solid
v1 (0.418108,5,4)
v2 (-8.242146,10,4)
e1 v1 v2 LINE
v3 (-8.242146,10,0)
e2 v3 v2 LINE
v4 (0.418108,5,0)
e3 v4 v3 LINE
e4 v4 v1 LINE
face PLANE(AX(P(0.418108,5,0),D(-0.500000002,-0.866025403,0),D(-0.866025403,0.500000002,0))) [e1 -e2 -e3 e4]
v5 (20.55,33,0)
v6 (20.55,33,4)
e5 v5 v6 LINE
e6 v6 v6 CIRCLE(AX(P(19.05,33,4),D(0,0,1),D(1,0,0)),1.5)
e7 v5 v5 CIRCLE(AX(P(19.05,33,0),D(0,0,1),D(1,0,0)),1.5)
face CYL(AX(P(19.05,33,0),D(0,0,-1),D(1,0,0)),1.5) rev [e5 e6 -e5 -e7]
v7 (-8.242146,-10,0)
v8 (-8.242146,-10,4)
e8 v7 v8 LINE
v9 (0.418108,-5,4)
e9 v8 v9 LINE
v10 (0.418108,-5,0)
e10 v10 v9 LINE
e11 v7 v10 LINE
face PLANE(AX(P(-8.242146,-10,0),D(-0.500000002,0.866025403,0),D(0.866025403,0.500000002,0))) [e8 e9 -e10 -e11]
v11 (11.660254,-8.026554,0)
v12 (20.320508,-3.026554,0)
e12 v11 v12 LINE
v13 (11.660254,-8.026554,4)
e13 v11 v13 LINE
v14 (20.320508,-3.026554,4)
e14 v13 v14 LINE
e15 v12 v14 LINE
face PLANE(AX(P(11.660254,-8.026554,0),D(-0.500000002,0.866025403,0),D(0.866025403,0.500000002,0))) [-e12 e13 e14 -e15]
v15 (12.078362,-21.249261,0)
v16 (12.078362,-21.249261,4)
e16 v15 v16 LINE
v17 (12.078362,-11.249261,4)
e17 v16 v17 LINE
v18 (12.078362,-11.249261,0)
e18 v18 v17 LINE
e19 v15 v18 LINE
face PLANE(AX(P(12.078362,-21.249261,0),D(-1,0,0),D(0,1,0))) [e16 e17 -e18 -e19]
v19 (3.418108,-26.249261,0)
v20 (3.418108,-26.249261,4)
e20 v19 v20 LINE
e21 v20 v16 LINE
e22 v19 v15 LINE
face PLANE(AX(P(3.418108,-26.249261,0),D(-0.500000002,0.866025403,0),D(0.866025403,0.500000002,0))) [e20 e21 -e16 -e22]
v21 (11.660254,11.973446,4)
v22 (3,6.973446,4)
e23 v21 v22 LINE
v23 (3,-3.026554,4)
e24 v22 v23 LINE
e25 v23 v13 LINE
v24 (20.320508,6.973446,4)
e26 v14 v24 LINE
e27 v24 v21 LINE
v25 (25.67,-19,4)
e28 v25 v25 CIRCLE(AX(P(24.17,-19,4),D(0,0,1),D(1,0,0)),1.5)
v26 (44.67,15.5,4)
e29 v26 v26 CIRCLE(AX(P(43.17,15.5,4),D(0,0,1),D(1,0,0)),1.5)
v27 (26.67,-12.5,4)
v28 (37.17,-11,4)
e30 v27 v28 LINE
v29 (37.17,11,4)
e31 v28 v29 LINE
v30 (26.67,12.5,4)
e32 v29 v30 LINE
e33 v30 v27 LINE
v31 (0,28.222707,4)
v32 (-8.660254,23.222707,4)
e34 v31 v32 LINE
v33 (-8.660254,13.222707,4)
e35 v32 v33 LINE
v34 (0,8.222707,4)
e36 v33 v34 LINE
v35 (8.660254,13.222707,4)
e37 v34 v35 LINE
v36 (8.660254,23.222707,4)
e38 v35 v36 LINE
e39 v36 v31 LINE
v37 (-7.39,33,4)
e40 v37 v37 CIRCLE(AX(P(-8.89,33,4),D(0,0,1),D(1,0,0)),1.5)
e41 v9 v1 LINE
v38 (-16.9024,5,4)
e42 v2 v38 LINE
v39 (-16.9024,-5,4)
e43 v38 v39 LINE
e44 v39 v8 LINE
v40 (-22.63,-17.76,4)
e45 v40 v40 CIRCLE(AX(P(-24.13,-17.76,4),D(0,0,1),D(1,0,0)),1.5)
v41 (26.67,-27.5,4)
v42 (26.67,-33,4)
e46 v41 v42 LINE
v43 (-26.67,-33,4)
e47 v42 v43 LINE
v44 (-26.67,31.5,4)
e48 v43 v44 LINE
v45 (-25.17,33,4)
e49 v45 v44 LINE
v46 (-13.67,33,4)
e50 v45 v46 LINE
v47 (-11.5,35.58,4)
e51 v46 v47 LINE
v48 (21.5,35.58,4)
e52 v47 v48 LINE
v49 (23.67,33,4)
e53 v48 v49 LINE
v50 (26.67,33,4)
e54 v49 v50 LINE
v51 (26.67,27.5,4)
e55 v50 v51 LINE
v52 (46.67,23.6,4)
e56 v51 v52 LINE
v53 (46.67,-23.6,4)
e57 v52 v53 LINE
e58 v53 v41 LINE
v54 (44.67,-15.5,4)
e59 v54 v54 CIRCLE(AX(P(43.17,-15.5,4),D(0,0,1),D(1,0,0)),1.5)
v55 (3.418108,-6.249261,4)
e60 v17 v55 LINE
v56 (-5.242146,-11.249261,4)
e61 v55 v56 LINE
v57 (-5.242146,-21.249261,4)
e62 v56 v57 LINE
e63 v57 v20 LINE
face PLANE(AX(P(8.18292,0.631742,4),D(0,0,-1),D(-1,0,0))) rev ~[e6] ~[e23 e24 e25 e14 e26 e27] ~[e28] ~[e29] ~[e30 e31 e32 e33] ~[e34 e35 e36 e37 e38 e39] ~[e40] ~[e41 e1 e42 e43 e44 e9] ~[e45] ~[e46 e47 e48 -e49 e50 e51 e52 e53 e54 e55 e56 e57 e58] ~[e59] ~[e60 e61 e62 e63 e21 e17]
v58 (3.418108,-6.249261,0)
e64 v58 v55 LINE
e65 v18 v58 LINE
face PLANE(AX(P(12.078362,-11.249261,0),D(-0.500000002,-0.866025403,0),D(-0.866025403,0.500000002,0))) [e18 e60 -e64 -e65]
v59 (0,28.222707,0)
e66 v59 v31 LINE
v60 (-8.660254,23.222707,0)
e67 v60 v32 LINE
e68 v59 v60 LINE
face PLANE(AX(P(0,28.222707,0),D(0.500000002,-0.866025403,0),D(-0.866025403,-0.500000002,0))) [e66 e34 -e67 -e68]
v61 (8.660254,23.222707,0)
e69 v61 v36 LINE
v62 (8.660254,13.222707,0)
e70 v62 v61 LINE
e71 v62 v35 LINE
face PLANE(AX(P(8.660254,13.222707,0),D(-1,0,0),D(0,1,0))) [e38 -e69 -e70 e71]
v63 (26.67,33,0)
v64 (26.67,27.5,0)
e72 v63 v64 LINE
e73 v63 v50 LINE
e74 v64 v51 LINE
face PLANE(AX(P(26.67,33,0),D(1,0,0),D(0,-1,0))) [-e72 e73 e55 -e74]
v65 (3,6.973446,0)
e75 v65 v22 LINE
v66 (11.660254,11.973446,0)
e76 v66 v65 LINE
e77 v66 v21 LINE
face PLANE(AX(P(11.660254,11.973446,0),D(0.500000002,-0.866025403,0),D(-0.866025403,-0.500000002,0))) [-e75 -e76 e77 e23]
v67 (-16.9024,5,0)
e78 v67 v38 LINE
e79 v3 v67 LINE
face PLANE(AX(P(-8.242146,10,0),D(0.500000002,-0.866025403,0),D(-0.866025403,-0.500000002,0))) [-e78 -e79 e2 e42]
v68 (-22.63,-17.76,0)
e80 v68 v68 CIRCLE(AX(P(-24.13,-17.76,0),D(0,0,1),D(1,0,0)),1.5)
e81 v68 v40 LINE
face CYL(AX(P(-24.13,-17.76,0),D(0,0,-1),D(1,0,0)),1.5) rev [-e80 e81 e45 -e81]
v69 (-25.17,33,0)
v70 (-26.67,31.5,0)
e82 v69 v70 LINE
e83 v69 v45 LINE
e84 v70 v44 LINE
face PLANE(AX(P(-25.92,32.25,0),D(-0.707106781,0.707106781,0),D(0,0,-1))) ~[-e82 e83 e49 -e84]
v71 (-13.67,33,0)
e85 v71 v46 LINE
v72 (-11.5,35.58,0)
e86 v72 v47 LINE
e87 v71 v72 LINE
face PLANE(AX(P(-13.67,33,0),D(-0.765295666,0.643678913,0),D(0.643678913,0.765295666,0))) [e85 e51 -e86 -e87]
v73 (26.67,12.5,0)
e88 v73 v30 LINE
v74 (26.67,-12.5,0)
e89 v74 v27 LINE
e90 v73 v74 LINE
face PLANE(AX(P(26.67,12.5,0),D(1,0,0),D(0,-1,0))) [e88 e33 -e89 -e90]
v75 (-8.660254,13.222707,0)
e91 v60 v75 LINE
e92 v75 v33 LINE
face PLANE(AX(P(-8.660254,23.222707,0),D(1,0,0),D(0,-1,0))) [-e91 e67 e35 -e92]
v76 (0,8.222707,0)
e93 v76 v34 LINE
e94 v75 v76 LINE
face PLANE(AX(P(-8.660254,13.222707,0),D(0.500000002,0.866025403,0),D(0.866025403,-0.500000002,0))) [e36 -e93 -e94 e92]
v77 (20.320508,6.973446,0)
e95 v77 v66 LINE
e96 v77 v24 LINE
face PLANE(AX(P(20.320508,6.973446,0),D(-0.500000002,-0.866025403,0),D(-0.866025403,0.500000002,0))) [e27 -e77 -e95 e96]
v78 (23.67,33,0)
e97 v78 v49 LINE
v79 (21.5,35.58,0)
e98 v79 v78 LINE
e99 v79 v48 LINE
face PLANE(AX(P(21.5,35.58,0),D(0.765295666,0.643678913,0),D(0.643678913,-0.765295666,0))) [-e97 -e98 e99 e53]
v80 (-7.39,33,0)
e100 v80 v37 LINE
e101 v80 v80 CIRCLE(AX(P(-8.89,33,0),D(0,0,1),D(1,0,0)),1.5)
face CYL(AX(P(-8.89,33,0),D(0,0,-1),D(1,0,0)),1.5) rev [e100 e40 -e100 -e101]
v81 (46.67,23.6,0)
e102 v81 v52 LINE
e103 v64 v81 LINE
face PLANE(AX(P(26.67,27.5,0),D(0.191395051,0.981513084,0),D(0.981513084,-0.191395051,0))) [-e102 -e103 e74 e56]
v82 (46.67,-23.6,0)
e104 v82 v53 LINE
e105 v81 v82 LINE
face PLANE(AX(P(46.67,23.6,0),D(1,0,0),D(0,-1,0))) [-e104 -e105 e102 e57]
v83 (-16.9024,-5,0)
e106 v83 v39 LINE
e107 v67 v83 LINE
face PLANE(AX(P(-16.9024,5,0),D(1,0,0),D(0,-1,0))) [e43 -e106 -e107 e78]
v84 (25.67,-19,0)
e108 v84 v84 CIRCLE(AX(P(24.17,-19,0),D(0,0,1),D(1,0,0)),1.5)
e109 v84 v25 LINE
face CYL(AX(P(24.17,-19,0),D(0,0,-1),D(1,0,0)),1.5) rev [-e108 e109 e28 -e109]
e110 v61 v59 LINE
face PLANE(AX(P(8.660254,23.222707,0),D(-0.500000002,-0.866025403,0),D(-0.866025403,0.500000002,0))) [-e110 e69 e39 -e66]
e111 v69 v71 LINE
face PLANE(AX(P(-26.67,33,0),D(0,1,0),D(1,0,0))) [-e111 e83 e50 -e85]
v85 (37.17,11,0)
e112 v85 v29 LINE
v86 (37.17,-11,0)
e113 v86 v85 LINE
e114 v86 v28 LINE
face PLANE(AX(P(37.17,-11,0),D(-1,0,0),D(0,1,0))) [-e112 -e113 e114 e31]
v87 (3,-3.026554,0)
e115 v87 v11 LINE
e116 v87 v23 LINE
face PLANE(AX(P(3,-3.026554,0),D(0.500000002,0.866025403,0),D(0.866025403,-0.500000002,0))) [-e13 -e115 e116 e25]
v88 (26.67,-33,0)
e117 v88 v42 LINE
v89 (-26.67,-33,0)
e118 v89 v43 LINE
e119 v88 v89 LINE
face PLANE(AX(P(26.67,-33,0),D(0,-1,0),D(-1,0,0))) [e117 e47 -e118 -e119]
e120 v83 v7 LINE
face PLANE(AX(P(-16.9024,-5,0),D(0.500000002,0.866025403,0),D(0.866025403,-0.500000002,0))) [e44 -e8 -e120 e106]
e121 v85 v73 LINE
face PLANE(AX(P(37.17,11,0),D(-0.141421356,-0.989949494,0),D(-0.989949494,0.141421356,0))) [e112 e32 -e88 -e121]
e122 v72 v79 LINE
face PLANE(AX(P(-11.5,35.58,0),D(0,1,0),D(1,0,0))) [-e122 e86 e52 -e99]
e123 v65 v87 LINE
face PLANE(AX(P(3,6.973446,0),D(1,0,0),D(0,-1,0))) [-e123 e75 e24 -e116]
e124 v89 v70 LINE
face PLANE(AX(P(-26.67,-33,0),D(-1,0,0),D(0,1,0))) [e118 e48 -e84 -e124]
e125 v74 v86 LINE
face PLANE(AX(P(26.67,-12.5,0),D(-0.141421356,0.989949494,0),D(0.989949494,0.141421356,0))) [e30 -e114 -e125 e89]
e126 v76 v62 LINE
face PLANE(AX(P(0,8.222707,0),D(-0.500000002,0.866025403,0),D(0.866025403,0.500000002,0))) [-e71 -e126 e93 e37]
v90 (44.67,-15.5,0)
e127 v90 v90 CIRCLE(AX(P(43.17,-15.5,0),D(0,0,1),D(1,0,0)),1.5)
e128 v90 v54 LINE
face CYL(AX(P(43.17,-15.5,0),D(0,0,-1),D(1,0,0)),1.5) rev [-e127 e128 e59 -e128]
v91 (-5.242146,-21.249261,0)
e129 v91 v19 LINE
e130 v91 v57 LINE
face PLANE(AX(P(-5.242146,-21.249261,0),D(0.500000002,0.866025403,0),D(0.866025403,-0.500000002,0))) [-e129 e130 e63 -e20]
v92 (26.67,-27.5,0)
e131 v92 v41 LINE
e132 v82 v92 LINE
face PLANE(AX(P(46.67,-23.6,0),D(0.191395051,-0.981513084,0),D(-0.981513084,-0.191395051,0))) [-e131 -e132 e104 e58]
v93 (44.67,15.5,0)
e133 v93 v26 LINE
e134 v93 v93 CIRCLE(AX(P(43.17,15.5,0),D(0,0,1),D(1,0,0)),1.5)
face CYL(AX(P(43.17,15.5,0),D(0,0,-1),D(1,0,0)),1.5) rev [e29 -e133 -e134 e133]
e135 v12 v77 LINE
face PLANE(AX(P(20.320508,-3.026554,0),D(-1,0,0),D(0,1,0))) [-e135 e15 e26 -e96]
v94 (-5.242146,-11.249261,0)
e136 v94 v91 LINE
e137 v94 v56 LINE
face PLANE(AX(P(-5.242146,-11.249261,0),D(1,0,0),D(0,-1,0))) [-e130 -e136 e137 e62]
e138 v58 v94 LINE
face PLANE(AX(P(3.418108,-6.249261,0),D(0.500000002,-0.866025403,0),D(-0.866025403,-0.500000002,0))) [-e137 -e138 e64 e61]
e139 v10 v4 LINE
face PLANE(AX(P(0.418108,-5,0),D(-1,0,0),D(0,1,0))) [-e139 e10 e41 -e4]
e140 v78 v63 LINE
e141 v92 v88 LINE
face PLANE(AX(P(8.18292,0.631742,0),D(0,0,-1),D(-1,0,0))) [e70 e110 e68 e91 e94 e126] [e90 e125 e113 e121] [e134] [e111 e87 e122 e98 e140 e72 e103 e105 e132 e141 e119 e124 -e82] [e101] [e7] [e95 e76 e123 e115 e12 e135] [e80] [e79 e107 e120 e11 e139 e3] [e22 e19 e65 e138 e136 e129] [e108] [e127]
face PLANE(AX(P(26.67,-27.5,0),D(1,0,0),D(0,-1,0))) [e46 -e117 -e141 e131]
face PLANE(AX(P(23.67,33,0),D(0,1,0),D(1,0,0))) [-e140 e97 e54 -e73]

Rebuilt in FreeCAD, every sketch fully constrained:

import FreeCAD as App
import Part
import Sketcher

V = App.Vector
Q = App.Units.Quantity


def edges_at(feature, points):
    """Names of the edges that pass closest to the given points."""
    edges = feature.Shape.Edges
    near = lambda p: min(range(len(edges)), key=lambda i: edges[i].distToShape(Part.Vertex(*p))[0])
    return sorted({f"Edge{near(p) + 1}" for p in points})


def add_polygon(sketch, points):
    """Adds a closed chain of lines whose ends are joined by coincident constraints."""
    first, n = sketch.GeometryCount, len(points)
    for a, b in zip(points, points[1:] + points[:1]):
        sketch.addGeometry(Part.LineSegment(App.Vector(*a, 0), App.Vector(*b, 0)), False)
    for i in range(n):
        sketch.addConstraint(Sketcher.Constraint("Coincident", first + i, 2, first + (i + 1) % n, 1))

doc = App.newDocument("Part")
params = doc.addObject("Spreadsheet::Sheet", "Params")
for row, (alias, value) in enumerate([
    ("sketch1_diameter", "3 mm"),
    ("sketch1_width", "33 mm"),
    ("sketch1_width2", "13 mm"),
    ("sketch1_width3", "3 mm"),
    ("sketch1_height", "66 mm"),
    ("pad1_length", "4 mm"),
    ("chamfer_size", "1.5 mm"),
], start=1):
    params.set(f"A{row}", alias)
    params.set(f"B{row}", "=" + value)
    params.setAlias(f"B{row}", alias)

body = doc.addObject("PartDesign::Body", "Body")

# Sketch on XY plane
sketch1 = doc.addObject("Sketcher::SketchObject", "Sketch")
body.addObject(sketch1)
sketch1.AttachmentSupport = (doc.XY_Plane, [""])
sketch1.MapMode = "FlatFace"
add_polygon(sketch1, [(21.5, 35.6), (-11.5, 35.6), (-13.7, 33), (-26.7, 33), (-26.7, -33), (26.7, -33), (26.7, -27.5), (46.7, -23.6), (46.7, 23.6), (26.7, 27.5), (26.7, 33), (23.7, 33)])  # lines 0-11
sketch1.addGeometry(Part.Circle(V(43.2, -15.5, 0), V(0, 0, 1), 1.5), False)  # 12
sketch1.addGeometry(Part.Circle(V(24.2, -19, 0), V(0, 0, 1), 1.5), False)  # 13
add_polygon(sketch1, [(26.7, 12.5), (37.2, 11), (37.2, -11), (26.7, -12.5)])  # lines 14-17
add_polygon(sketch1, [(20.3, -3), (11.7, -8), (3, -3), (3, 7), (11.7, 12), (20.3, 7)])  # lines 18-23
add_polygon(sketch1, [(12.1, -21.2), (3.4, -26.2), (-5.2, -21.2), (-5.2, -11.2), (3.4, -6.2), (12.1, -11.2)])  # lines 24-29
sketch1.addGeometry(Part.Circle(V(-24.1, -17.8, 0), V(0, 0, 1), 1.5), False)  # 30
add_polygon(sketch1, [(0.4, -5), (-8.2, -10), (-16.9, -5), (-16.9, 5), (-8.2, 10), (0.4, 5)])  # lines 31-36
sketch1.addGeometry(Part.Circle(V(43.2, 15.5, 0), V(0, 0, 1), 1.5), False)  # 37
sketch1.addGeometry(Part.Circle(V(19.1, 33, 0), V(0, 0, 1), 1.5), False)  # 38
add_polygon(sketch1, [(8.7, 13.2), (0, 8.2), (-8.7, 13.2), (-8.7, 23.2), (0, 28.2), (8.7, 23.2)])  # lines 39-44
sketch1.addGeometry(Part.Circle(V(-8.9, 33, 0), V(0, 0, 1), 1.5), False)  # 45
sketch1.addConstraint(Sketcher.Constraint("Horizontal", 0))
sketch1.addConstraint(Sketcher.Constraint("Horizontal", 2))
sketch1.addConstraint(Sketcher.Constraint("Vertical", 3))
sketch1.addConstraint(Sketcher.Constraint("Horizontal", 4))
sketch1.addConstraint(Sketcher.Constraint("Vertical", 5))
sketch1.addConstraint(Sketcher.Constraint("Vertical", 7))
sketch1.addConstraint(Sketcher.Constraint("Vertical", 9))
sketch1.addConstraint(Sketcher.Constraint("Horizontal", 10))
sketch1.addConstraint(Sketcher.Constraint("Vertical", 15))
sketch1.addConstraint(Sketcher.Constraint("Vertical", 17))
sketch1.addConstraint(Sketcher.Constraint("Vertical", 20))
sketch1.addConstraint(Sketcher.Constraint("Vertical", 23))
sketch1.addConstraint(Sketcher.Constraint("Vertical", 26))
sketch1.addConstraint(Sketcher.Constraint("Vertical", 29))
sketch1.addConstraint(Sketcher.Constraint("Vertical", 33))
sketch1.addConstraint(Sketcher.Constraint("Vertical", 36))
sketch1.addConstraint(Sketcher.Constraint("Vertical", 41))
sketch1.addConstraint(Sketcher.Constraint("Vertical", 44))
sketch1.addConstraint(Sketcher.Constraint("Equal", 12, 13))
sketch1.addConstraint(Sketcher.Constraint("Equal", 13, 30))
sketch1.addConstraint(Sketcher.Constraint("Equal", 30, 37))
sketch1.addConstraint(Sketcher.Constraint("Equal", 37, 38))
sketch1.addConstraint(Sketcher.Constraint("Equal", 38, 45))
sketch1.addConstraint(Sketcher.Constraint("Symmetric", 2, 2, 4, 2, -1, 1))
sketch1.addConstraint(Sketcher.Constraint("Symmetric", 3, 2, 9, 2, -1, 1))
sketch1.addConstraint(Sketcher.Constraint("Symmetric", 41, 2, 43, 2, -2))
sketch1.addConstraint(Sketcher.Constraint("Symmetric", 12, 3, 37, 3, -1))
sketch1.addConstraint(Sketcher.Constraint("Symmetric", 31, 2, 34, 2, -1))
sketch1.addConstraint(Sketcher.Constraint("PointOnObject", 39, 2, -2))
sketch1.addConstraint(Sketcher.Constraint("PointOnObject", 42, 2, -2))
sketch1.addConstraint(Sketcher.Constraint("Parallel", 18, 21))
sketch1.addConstraint(Sketcher.Constraint("Parallel", 19, 22))
sketch1.addConstraint(Sketcher.Constraint("Parallel", 21, 24))
sketch1.addConstraint(Sketcher.Constraint("Parallel", 22, 25))
sketch1.addConstraint(Sketcher.Constraint("Parallel", 24, 27))
sketch1.addConstraint(Sketcher.Constraint("Parallel", 25, 28))
sketch1.addConstraint(Sketcher.Constraint("Parallel", 27, 31))
sketch1.addConstraint(Sketcher.Constraint("Parallel", 28, 32))
sketch1.addConstraint(Sketcher.Constraint("Parallel", 31, 34))
sketch1.addConstraint(Sketcher.Constraint("Parallel", 32, 35))
sketch1.addConstraint(Sketcher.Constraint("Parallel", 34, 39))
sketch1.addConstraint(Sketcher.Constraint("Parallel", 35, 40))
sketch1.addConstraint(Sketcher.Constraint("Parallel", 39, 42))
sketch1.addConstraint(Sketcher.Constraint("Parallel", 40, 43))
sketch1.addConstraint(Sketcher.Constraint("Horizontal", 38, 3, 45, 3))
sketch1.addConstraint(Sketcher.Constraint("Horizontal", 45, 3, 1, 2))
sketch1.addConstraint(Sketcher.Constraint("Horizontal", 20, 2, 22, 2))
sketch1.addConstraint(Sketcher.Constraint("Horizontal", 19, 2, 23, 2))
sketch1.addConstraint(Sketcher.Constraint("Horizontal", 26, 2, 28, 2))
sketch1.addConstraint(Sketcher.Constraint("Horizontal", 25, 2, 29, 2))
sketch1.addConstraint(Sketcher.Constraint("Horizontal", 33, 2, 35, 2))
sketch1.addConstraint(Sketcher.Constraint("Vertical", 9, 2, 16, 2))
sketch1.addConstraint(Sketcher.Constraint("Equal", 5, 9))
sketch1.addConstraint(Sketcher.Constraint("Equal", 23, 26))
sketch1.addConstraint(Sketcher.Constraint("Equal", 29, 33))
sketch1.addConstraint(Sketcher.Constraint("Equal", 36, 41))
sketch1.addConstraint(Sketcher.Constraint("Equal", 6, 8))
sketch1.addConstraint(Sketcher.Constraint("Equal", 1, 11))
sketch1.addConstraint(Sketcher.Constraint("Equal", 14, 16))
sketch1.addConstraint(Sketcher.Constraint("Equal", 22, 24))
sketch1.addConstraint(Sketcher.Constraint("Equal", 28, 31))
sketch1.addConstraint(Sketcher.Constraint("Equal", 35, 39))
sketch1.addConstraint(Sketcher.Constraint("Diameter", 12, 3.0))
sketch1.addConstraint(Sketcher.Constraint("DistanceX", 0, 2, 0, 1, 33.0))
sketch1.addConstraint(Sketcher.Constraint("DistanceX", 2, 2, 2, 1, 13.0))
sketch1.addConstraint(Sketcher.Constraint("DistanceX", 10, 2, 10, 1, 3.0))
sketch1.addConstraint(Sketcher.Constraint("DistanceY", 3, 2, 3, 1, 66.0))
sketch1.addConstraint(Sketcher.Constraint("DistanceY", 15, 2, 15, 1, 22.0))
sketch1.addConstraint(Sketcher.Constraint("DistanceY", 17, 1, 17, 2, 25.0))
sketch1.addConstraint(Sketcher.Constraint("DistanceY", 20, 1, 20, 2, 10.0))
sketch1.addConstraint(Sketcher.Constraint("Angle", 18, Q("-150 deg")))
sketch1.addConstraint(Sketcher.Constraint("Distance", 18, 10.0))
sketch1.addConstraint(Sketcher.Constraint("DistanceY", 5, 1, 5, 2, 5.5))
sketch1.addConstraint(Sketcher.Constraint("DistanceY", 7, 1, 7, 2, 47.2))
sketch1.addConstraint(Sketcher.Constraint("DistanceY", 13, 3, -1, 1, 19.0))
sketch1.addConstraint(Sketcher.Constraint("DistanceY", -1, 1, 14, 2, 11.0))
sketch1.addConstraint(Sketcher.Constraint("DistanceX", -1, 1, 19, 2, 3.0))
sketch1.addConstraint(Sketcher.Constraint("DistanceX", 13, 3, 12, 3, 19.0))
sketch1.addConstraint(Sketcher.Constraint("DistanceY", 12, 3, 37, 3, 31.0))
sketch1.addConstraint(Sketcher.Constraint("DistanceX", 5, 2, 6, 2, 20.0))
sketch1.addConstraint(Sketcher.Constraint("DistanceX", 14, 2, 37, 3, 6.0))
sketch1.addConstraint(Sketcher.Constraint("DistanceX", 31, 2, 26, 2, 3.0))
sketch1.addConstraint(Sketcher.Constraint("DistanceX", 4, 1, 4, 2, 53.34))
sketch1.addConstraint(Sketcher.Constraint("DistanceX", 30, 3, 13, 3, 48.3))
sketch1.addConstraint(Sketcher.Constraint("DistanceX", 13, 3, 4, 2, 2.5))
sketch1.addConstraint(Sketcher.Constraint("DistanceY", 30, 3, -1, 1, 17.76))
sketch1.addConstraint(Sketcher.Constraint("DistanceX", -1, 1, 38, 3, 19.05))
sketch1.addConstraint(Sketcher.Constraint("DistanceX", 45, 3, -1, 1, 8.89))
sketch1.addConstraint(Sketcher.Constraint("DistanceY", -1, 1, 0, 2, 35.58))
sketch1.addConstraint(Sketcher.Constraint("DistanceX", 32, 2, -1, 1, 16.9024))
sketch1.addConstraint(Sketcher.Constraint("DistanceY", 24, 2, -1, 1, 26.249261))
sketch1.addConstraint(Sketcher.Constraint("DistanceY", 20, 2, 39, 2, 1.249261))
sketch1.addConstraint(Sketcher.Constraint("DistanceY", 18, 2, -1, 1, 8.026554))
sketch1.setExpression("Constraints[102]", "Params.sketch1_diameter")
sketch1.setExpression("Constraints[103]", "Params.sketch1_width")
sketch1.setExpression("Constraints[104]", "Params.sketch1_width2")
sketch1.setExpression("Constraints[105]", "Params.sketch1_width3")
sketch1.setExpression("Constraints[106]", "Params.sketch1_height")
pad1 = doc.addObject("PartDesign::Pad", "Pad")
body.addObject(pad1)
pad1.Profile = sketch1
pad1.setExpression("Length", "Params.pad1_length")
doc.recompute()

chamfer = doc.addObject("PartDesign::Chamfer", "Chamfer")
body.addObject(chamfer)
chamfer.Base = (pad1, edges_at(pad1, [(-26.67, 33, 2)]))
chamfer.setExpression("Size", "Params.chamfer_size")

doc.recompute()
